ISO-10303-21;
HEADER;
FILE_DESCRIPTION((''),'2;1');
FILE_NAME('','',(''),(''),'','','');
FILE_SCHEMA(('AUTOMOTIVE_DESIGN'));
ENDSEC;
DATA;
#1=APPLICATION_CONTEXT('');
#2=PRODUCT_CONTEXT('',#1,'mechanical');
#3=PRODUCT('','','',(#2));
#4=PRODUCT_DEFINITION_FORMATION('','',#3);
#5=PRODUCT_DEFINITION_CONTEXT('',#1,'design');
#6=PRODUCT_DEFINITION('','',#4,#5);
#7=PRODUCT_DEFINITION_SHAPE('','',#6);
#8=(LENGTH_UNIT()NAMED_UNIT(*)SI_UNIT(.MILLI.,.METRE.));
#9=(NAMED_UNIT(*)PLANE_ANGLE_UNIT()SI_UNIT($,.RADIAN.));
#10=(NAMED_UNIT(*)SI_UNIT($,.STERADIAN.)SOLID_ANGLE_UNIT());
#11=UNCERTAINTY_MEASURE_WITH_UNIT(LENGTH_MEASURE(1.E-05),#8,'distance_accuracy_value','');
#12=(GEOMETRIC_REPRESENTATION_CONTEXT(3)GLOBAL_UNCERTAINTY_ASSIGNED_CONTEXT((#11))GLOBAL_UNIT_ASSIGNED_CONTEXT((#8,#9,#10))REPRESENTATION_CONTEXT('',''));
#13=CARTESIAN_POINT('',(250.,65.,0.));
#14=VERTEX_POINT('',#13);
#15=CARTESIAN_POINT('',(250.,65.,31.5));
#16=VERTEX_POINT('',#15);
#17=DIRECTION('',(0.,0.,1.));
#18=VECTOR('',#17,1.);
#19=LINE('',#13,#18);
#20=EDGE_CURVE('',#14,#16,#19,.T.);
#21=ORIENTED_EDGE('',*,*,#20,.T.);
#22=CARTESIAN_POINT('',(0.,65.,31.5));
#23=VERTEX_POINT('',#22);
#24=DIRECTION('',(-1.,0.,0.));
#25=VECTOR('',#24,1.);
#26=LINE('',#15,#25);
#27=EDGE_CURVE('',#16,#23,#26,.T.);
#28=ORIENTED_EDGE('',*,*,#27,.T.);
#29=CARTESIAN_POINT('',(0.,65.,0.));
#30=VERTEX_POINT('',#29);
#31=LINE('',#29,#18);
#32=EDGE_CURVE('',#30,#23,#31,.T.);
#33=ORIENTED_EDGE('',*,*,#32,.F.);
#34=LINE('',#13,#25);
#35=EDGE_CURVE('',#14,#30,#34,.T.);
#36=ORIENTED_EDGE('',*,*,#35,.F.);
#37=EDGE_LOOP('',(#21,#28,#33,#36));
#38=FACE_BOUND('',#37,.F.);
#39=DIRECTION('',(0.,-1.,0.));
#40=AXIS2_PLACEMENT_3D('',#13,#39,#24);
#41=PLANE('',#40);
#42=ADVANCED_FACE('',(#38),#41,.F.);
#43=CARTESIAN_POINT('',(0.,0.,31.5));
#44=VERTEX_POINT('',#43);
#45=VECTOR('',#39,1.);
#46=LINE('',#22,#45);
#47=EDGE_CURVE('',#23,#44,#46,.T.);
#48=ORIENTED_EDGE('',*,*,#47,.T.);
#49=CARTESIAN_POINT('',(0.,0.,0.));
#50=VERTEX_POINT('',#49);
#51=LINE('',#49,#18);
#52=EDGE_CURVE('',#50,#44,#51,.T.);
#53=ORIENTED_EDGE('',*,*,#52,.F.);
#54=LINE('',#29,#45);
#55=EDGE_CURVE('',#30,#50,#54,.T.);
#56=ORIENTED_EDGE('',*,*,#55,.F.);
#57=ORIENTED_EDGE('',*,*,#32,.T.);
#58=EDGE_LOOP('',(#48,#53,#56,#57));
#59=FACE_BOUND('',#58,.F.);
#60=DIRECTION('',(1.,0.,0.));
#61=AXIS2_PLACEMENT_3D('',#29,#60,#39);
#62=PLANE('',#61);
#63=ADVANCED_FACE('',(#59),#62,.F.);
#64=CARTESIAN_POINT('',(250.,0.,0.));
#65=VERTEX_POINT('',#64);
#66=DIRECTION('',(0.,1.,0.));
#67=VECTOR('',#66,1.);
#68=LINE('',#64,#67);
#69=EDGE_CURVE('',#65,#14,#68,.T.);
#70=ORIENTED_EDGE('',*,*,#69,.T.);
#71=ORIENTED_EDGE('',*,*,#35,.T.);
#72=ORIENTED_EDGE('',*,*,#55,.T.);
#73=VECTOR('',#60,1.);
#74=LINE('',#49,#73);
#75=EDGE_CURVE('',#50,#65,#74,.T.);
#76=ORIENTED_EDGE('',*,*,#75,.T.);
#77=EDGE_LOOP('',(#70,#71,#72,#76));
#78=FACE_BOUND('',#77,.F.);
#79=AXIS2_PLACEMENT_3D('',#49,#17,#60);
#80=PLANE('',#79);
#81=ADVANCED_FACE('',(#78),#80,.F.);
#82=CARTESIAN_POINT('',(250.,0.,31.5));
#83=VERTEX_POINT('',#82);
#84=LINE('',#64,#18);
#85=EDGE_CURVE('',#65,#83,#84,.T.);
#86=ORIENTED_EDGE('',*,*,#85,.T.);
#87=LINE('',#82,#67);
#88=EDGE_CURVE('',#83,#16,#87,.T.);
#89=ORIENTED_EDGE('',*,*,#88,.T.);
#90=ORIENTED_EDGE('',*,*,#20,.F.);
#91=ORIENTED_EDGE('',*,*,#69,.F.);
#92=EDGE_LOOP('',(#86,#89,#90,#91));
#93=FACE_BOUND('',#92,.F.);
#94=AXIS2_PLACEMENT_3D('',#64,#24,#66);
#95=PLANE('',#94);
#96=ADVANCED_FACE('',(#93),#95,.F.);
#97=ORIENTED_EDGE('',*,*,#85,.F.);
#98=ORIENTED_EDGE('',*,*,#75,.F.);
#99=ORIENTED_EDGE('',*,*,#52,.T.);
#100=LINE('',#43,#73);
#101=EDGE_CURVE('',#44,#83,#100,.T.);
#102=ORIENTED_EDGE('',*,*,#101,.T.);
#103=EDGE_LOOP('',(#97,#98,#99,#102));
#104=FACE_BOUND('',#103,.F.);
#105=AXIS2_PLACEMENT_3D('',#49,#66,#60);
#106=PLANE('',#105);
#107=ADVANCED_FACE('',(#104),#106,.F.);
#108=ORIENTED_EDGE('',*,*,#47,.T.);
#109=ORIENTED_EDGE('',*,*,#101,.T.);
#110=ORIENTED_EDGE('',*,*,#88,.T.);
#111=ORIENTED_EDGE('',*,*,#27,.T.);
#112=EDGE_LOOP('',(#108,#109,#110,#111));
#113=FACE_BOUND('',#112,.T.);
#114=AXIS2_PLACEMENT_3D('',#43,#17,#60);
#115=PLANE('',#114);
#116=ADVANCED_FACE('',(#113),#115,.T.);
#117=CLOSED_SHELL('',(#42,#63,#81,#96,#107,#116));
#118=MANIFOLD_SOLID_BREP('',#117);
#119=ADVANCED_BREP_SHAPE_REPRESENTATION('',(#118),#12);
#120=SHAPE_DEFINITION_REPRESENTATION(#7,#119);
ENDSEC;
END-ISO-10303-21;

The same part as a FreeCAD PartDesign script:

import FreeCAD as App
import Part
import Sketcher
from FreeCAD import Vector
Q = App.Units.Quantity

doc = App.newDocument("Part")
body = doc.addObject("PartDesign::Body", "Body")

# Sketch on XY plane
sketch1 = body.newObject("Sketcher::SketchObject", "Sketch")
sketch1.AttachmentSupport = (doc.getObject("XY_Plane"), [""])
sketch1.MapMode = "FlatFace"
sketch1.addGeometry([
    Part.LineSegment(Vector(0, 65, 0), Vector(0, 0, 0)),
    Part.LineSegment(Vector(0, 0, 0), Vector(250, 0, 0)),
    Part.LineSegment(Vector(250, 0, 0), Vector(250, 65, 0)),
    Part.LineSegment(Vector(250, 65, 0), Vector(0, 65, 0)),
], False)
sketch1.addConstraint([
    Sketcher.Constraint("Coincident", 0, 2, 1, 1),
    Sketcher.Constraint("Coincident", 1, 2, 2, 1),
    Sketcher.Constraint("Coincident", 2, 2, 3, 1),
    Sketcher.Constraint("Coincident", 3, 2, 0, 1),
    Sketcher.Constraint("Vertical", 0),
    Sketcher.Constraint("Horizontal", 1),
    Sketcher.Constraint("Vertical", 2),
    Sketcher.Constraint("Horizontal", 3),
    Sketcher.Constraint("Coincident", 0, 2, -1, 1),
    Sketcher.Constraint("DistanceX", 1, 1, 1, 2, Q("250 mm")),
    Sketcher.Constraint("DistanceY", 0, 2, 0, 1, Q("65 mm")),
])
pad1 = body.newObject("PartDesign::Pad", "Pad")
pad1.Profile = sketch1
pad1.Length = 31.5

doc.recompute()
